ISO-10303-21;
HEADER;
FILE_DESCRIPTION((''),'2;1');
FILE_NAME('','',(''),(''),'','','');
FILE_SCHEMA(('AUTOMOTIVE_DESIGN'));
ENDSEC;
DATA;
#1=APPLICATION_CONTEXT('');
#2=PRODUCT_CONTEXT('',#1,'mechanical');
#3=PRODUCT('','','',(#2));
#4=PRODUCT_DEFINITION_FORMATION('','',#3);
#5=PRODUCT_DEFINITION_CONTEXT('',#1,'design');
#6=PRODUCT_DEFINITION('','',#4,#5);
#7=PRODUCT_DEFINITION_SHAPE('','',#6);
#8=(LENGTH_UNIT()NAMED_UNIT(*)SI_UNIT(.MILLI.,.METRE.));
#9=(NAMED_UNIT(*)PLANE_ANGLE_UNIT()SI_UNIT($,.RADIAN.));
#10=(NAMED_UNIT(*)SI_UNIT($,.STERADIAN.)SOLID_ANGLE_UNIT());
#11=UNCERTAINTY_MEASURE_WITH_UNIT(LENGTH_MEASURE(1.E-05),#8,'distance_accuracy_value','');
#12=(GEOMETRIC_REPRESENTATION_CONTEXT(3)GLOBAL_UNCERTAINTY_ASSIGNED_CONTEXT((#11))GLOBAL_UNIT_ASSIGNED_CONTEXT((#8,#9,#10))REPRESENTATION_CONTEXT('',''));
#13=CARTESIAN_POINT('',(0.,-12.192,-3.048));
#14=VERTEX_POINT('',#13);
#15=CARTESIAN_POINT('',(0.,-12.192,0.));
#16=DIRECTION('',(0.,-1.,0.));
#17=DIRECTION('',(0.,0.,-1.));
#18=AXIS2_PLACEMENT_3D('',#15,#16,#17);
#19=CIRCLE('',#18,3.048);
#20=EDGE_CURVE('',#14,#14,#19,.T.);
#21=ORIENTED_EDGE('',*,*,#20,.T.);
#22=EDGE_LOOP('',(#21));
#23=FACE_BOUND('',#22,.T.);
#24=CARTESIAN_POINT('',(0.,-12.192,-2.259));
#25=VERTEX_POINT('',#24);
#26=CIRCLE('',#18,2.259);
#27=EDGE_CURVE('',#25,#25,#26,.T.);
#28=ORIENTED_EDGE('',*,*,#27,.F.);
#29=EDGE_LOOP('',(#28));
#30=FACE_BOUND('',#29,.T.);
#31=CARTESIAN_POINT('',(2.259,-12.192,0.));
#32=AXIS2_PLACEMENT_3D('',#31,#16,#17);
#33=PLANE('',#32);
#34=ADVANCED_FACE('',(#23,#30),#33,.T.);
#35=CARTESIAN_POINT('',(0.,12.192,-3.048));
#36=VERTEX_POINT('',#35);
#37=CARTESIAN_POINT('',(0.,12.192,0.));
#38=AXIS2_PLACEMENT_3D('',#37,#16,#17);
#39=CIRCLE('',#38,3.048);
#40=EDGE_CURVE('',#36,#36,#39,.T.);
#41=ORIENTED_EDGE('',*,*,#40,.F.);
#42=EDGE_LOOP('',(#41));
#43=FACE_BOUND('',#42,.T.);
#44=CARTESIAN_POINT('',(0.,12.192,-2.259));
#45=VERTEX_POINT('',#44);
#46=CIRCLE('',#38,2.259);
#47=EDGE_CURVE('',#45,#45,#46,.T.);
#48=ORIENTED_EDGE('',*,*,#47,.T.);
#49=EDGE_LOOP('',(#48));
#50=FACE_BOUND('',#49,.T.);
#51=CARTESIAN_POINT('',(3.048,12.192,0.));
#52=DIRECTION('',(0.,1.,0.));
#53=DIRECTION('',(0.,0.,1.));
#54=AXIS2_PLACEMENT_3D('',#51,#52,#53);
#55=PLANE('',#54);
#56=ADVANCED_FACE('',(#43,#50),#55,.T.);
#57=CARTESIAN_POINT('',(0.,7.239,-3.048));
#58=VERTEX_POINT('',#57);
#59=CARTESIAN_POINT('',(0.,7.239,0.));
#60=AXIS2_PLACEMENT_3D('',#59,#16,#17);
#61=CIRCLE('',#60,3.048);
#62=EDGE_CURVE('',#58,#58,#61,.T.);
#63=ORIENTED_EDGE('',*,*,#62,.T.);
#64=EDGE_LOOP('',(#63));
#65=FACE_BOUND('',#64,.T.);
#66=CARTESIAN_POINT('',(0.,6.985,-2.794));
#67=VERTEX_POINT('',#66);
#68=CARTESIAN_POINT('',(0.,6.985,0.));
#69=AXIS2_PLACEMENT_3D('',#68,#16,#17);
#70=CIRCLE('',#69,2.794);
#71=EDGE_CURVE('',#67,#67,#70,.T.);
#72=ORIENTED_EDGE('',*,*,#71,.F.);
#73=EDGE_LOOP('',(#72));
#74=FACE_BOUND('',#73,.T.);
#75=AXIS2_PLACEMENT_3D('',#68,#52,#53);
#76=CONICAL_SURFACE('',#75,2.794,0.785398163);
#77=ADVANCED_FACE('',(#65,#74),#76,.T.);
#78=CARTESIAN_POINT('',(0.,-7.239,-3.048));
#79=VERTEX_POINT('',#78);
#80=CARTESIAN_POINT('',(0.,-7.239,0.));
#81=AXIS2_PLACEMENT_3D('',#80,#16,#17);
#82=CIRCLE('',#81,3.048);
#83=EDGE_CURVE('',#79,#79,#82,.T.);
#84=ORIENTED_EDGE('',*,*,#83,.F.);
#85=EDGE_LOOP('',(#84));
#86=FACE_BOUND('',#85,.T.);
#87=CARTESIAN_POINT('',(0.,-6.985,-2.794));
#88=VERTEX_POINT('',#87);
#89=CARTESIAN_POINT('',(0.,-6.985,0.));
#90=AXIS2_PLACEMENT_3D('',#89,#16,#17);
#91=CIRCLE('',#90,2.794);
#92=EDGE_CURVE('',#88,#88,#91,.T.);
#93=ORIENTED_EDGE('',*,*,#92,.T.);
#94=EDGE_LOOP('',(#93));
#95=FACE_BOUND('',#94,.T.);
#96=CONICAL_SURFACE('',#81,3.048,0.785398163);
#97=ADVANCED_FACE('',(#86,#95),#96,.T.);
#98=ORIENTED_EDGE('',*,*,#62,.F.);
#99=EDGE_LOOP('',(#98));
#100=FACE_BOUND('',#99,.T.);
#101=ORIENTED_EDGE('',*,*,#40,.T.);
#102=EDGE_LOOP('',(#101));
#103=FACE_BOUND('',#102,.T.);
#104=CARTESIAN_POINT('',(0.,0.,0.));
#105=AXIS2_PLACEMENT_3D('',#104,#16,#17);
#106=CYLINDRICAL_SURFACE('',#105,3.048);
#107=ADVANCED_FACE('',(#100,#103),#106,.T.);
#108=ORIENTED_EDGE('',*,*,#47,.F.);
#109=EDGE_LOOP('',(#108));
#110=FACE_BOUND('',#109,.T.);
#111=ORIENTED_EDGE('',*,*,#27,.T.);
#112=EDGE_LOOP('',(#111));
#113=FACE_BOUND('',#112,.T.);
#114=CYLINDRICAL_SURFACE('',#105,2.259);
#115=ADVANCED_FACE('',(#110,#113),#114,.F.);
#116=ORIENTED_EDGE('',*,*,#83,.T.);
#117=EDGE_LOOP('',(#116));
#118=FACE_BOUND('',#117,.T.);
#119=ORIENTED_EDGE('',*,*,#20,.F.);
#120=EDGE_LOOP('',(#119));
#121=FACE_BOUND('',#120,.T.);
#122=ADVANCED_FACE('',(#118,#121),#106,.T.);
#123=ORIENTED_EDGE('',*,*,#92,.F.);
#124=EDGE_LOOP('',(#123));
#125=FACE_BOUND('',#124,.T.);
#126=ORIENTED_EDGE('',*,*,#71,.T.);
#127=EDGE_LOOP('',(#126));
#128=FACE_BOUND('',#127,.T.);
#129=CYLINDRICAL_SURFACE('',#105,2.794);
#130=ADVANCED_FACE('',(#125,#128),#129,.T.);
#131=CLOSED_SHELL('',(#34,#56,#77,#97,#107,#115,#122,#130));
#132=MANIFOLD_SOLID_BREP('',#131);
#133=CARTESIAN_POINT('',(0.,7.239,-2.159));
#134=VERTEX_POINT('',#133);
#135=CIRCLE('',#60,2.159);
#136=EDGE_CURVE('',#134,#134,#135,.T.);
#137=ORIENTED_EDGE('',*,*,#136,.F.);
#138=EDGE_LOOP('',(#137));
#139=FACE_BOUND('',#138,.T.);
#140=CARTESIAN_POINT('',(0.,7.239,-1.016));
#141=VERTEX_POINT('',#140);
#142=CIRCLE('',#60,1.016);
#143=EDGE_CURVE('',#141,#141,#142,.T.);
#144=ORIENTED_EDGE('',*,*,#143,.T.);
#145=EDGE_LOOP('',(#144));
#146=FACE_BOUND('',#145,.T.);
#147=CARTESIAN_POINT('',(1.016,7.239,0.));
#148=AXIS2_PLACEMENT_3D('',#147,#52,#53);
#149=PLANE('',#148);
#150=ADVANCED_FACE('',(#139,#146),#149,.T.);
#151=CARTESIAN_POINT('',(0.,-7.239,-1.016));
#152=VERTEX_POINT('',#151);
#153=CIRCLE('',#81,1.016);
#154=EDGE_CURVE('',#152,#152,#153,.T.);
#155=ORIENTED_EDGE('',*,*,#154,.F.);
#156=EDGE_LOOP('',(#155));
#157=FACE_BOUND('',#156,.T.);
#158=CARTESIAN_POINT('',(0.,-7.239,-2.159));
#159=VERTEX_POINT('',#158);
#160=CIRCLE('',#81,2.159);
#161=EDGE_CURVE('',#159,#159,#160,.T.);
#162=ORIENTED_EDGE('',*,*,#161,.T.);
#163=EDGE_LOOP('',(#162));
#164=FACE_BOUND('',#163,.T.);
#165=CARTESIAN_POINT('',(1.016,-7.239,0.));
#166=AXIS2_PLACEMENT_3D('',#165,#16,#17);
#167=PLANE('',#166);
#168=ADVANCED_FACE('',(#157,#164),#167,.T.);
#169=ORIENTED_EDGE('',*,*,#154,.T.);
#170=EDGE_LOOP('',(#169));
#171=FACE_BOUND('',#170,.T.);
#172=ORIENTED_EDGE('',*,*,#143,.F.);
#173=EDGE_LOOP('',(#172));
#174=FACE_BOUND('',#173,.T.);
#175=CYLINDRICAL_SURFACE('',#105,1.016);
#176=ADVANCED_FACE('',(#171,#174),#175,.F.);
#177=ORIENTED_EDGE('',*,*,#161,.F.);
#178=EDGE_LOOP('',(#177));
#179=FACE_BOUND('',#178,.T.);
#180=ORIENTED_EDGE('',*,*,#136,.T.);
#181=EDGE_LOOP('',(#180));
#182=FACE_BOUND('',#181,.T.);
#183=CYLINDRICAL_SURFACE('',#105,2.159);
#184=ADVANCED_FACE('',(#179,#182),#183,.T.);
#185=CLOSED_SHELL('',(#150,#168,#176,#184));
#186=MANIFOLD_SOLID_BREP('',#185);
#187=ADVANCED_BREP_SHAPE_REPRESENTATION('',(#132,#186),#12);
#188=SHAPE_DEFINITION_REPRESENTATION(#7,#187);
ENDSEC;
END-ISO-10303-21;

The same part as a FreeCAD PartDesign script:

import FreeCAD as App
import Part
import Sketcher
from FreeCAD import Vector
Q = App.Units.Quantity


def add_polygon(sketch, points):
    """Adds a closed chain of lines whose ends are joined by coincident constraints."""
    first, n = sketch.GeometryCount, len(points)
    for a, b in zip(points, points[1:] + points[:1]):
        sketch.addGeometry(Part.LineSegment(App.Vector(*a, 0), App.Vector(*b, 0)), False)
    for i in range(n):
        sketch.addConstraint(Sketcher.Constraint("Coincident", first + i, 2, first + (i + 1) % n, 1))

doc = App.newDocument("Part")
body = doc.addObject("PartDesign::Body", "Body")
body.AllowCompound = True

sketch1 = body.newObject("Sketcher::SketchObject", "Sketch")
sketch1.AttachmentSupport = (doc.getObject("XY_Plane"), [""])
sketch1.MapMode = "FlatFace"
add_polygon(sketch1, [(2.26, 12.19), (2.26, -12.19), (3.05, -12.19), (3.05, -7.24), (2.79, -6.99), (2.79, 6.99), (3.05, 7.24), (3.05, 12.19)])
add_polygon(sketch1, [(1.02, 7.24), (1.02, -7.24), (2.16, -7.24), (2.16, 7.24)])
sketch1.addConstraint([
    Sketcher.Constraint("Vertical", 0),
    Sketcher.Constraint("Horizontal", 1),
    Sketcher.Constraint("Vertical", 2),
    Sketcher.Constraint("Vertical", 4),
    Sketcher.Constraint("Vertical", 6),
    Sketcher.Constraint("Horizontal", 7),
    Sketcher.Constraint("Vertical", 8),
    Sketcher.Constraint("Horizontal", 9),
    Sketcher.Constraint("Vertical", 10),
    Sketcher.Constraint("Horizontal", 11),
    Sketcher.Constraint("Symmetric", 2, 2, 5, 2, -1),
    Sketcher.Constraint("Perpendicular", 3, 5),
    Sketcher.Constraint("Horizontal", 2, 2, 8, 2),
    Sketcher.Constraint("Horizontal", 5, 2, 10, 2),
    Sketcher.Constraint("Equal", 2, 6),
    Sketcher.Constraint("Equal", 3, 5),
    Sketcher.Constraint("DistanceY", 0, 2, 0, 1, Q("0.96 in")),
    Sketcher.Constraint("DistanceY", 4, 1, 4, 2, Q("0.55 in")),
    Sketcher.Constraint("DistanceY", 8, 2, 8, 1, Q("0.57 in")),
    Sketcher.Constraint("DistanceX", 9, 1, 9, 2, Q("0.045 in")),
    Sketcher.Constraint("DistanceX", -1, 1, 1, 2, Q("0.12 in")),
    Sketcher.Constraint("DistanceX", -1, 1, 8, 2, Q("0.04 in")),
    Sketcher.Constraint("DistanceX", 1, 1, 1, 2, 0.789),
])
revolution = body.newObject("PartDesign::Revolution", "Revolution")
revolution.Profile = sketch1
revolution.ReferenceAxis = (sketch1, ["V_Axis"])
revolution.Angle = 360

doc.recompute()
